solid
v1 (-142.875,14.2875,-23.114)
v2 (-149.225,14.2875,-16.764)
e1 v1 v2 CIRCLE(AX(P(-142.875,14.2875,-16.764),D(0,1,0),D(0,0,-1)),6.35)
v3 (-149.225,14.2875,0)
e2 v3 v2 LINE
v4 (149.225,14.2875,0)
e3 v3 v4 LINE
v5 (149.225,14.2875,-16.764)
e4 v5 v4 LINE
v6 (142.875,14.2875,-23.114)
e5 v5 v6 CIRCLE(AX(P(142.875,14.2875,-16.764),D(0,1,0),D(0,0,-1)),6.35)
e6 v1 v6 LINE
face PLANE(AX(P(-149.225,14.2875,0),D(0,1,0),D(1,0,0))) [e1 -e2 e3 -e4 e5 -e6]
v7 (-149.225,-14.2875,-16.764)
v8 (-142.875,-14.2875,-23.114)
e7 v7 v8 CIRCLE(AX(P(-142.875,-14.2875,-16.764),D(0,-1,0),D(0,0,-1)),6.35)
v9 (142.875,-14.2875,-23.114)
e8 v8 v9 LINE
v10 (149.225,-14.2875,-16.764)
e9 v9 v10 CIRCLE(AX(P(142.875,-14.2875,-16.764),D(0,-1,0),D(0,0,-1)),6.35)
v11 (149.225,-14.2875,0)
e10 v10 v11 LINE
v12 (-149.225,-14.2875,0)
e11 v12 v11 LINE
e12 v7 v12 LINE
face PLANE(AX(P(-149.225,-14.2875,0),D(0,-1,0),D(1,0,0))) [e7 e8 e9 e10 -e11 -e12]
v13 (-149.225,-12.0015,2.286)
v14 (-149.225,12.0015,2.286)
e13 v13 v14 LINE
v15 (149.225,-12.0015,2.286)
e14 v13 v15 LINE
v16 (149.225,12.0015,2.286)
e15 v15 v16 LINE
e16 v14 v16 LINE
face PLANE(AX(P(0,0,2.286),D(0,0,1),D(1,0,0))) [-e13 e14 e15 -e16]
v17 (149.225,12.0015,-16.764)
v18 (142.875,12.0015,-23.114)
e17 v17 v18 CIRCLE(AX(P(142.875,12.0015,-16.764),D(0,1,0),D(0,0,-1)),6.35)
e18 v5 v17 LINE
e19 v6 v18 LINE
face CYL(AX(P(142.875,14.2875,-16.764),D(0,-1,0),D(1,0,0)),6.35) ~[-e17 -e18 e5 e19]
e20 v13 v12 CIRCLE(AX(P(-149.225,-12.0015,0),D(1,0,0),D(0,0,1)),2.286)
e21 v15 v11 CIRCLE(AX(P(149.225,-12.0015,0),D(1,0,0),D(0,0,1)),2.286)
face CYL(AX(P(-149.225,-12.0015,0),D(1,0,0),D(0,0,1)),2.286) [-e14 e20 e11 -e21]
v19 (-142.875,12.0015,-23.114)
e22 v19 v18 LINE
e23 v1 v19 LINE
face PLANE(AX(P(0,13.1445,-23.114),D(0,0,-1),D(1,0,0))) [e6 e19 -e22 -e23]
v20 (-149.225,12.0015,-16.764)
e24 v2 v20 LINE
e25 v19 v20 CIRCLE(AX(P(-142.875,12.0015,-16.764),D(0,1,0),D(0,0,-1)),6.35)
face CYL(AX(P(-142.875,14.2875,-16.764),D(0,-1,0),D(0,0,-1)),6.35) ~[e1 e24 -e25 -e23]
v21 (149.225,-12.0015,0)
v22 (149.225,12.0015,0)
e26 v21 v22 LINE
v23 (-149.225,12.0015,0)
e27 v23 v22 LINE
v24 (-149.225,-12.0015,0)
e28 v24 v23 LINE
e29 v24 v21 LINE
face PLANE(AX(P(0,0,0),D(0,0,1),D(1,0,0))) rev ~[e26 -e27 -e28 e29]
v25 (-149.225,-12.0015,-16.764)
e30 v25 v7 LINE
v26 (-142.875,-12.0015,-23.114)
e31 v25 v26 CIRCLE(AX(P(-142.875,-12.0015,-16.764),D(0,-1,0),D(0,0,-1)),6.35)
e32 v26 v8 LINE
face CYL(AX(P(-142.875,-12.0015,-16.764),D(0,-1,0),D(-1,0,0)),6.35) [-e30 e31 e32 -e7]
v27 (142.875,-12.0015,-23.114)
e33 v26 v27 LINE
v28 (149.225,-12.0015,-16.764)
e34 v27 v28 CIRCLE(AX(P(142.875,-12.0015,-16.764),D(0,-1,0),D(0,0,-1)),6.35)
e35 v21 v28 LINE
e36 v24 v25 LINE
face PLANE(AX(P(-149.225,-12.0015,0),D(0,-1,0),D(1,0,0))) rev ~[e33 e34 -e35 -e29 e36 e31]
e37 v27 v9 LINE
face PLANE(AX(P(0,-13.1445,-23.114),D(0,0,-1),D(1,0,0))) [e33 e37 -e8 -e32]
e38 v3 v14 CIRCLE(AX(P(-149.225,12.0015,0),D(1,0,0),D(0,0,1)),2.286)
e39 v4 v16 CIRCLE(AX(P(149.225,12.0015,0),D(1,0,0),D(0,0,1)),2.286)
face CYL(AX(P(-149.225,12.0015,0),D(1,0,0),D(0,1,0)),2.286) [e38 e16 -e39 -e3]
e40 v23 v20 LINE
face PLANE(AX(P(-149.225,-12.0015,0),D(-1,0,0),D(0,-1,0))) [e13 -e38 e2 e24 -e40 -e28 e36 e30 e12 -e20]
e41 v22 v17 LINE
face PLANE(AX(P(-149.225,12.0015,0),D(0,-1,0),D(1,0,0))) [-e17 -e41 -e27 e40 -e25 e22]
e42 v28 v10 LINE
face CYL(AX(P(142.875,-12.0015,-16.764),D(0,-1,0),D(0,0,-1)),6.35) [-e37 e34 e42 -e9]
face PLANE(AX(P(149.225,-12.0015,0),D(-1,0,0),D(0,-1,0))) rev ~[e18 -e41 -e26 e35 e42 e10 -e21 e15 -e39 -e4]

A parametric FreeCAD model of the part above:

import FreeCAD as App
import Part
import Sketcher
Q = App.Units.Quantity


def edges_at(feature, points):
    """Names of the edges that pass closest to the given points."""
    edges = feature.Shape.Edges
    near = lambda p: min(range(len(edges)), key=lambda i: edges[i].distToShape(Part.Vertex(*p))[0])
    return sorted({f"Edge{near(p) + 1}" for p in points})

doc = App.newDocument("Part")
body = doc.addObject("PartDesign::Body", "Body")

sketch1 = body.newObject("Sketcher::SketchObject", "Sketch")
sketch1.AttachmentSupport = (doc.getObject("XY_Plane"), [""])
sketch1.MapMode = "FlatFace"
sketch1.addGeometry([
    Part.LineSegment(App.Vector(-149.225, 14.2875, 0), App.Vector(-149.225, -14.2875, 0)),
    Part.LineSegment(App.Vector(-149.225, -14.2875, 0), App.Vector(149.225, -14.2875, 0)),
    Part.LineSegment(App.Vector(149.225, -14.2875, 0), App.Vector(149.225, 14.2875, 0)),
    Part.LineSegment(App.Vector(149.225, 14.2875, 0), App.Vector(-149.225, 14.2875, 0)),
], False)
sketch1.addConstraint([
    Sketcher.Constraint("Coincident", 0, 2, 1, 1),
    Sketcher.Constraint("Coincident", 1, 2, 2, 1),
    Sketcher.Constraint("Coincident", 2, 2, 3, 1),
    Sketcher.Constraint("Coincident", 3, 2, 0, 1),
    Sketcher.Constraint("Vertical", 0),
    Sketcher.Constraint("Horizontal", 1),
    Sketcher.Constraint("Vertical", 2),
    Sketcher.Constraint("Horizontal", 3),
    Sketcher.Constraint("Symmetric", 0, 2, 2, 2, -1, 1),
    Sketcher.Constraint("DistanceX", 1, 1, 1, 2, Q("11.75 in")),
    Sketcher.Constraint("DistanceY", 0, 2, 0, 1, Q("1.125 in")),
])
pad1 = body.newObject("PartDesign::Pad", "Pad")
pad1.Profile = sketch1
pad1.Length = Q("0.09 in")

sketch2 = body.newObject("Sketcher::SketchObject", "Sketch001")
sketch2.AttachmentSupport = (doc.getObject("XY_Plane"), [""])
sketch2.MapMode = "FlatFace"
sketch2.addGeometry([
    Part.LineSegment(App.Vector(-149.225, -14.2875, 0), App.Vector(-149.225, -12.0015, 0)),
    Part.LineSegment(App.Vector(-149.225, -12.0015, 0), App.Vector(149.225, -12.0015, 0)),
    Part.LineSegment(App.Vector(149.225, -12.0015, 0), App.Vector(149.225, -14.2875, 0)),
    Part.LineSegment(App.Vector(149.225, -14.2875, 0), App.Vector(-149.225, -14.2875, 0)),
    Part.LineSegment(App.Vector(-149.225, 12.0015, 0), App.Vector(-149.225, 14.2875, 0)),
    Part.LineSegment(App.Vector(-149.225, 14.2875, 0), App.Vector(149.225, 14.2875, 0)),
    Part.LineSegment(App.Vector(149.225, 14.2875, 0), App.Vector(149.225, 12.0015, 0)),
    Part.LineSegment(App.Vector(149.225, 12.0015, 0), App.Vector(-149.225, 12.0015, 0)),
], False)
sketch2.addConstraint([
    Sketcher.Constraint("Coincident", 0, 2, 1, 1),
    Sketcher.Constraint("Coincident", 1, 2, 2, 1),
    Sketcher.Constraint("Coincident", 2, 2, 3, 1),
    Sketcher.Constraint("Coincident", 3, 2, 0, 1),
    Sketcher.Constraint("Coincident", 4, 2, 5, 1),
    Sketcher.Constraint("Coincident", 5, 2, 6, 1),
    Sketcher.Constraint("Coincident", 6, 2, 7, 1),
    Sketcher.Constraint("Coincident", 7, 2, 4, 1),
    Sketcher.Constraint("Vertical", 0),
    Sketcher.Constraint("Horizontal", 1),
    Sketcher.Constraint("Vertical", 2),
    Sketcher.Constraint("Horizontal", 3),
    Sketcher.Constraint("Vertical", 4),
    Sketcher.Constraint("Horizontal", 5),
    Sketcher.Constraint("Vertical", 6),
    Sketcher.Constraint("Horizontal", 7),
    Sketcher.Constraint("Symmetric", 2, 2, 4, 2, -1, 1),
    Sketcher.Constraint("Symmetric", 0, 2, 6, 2, -1, 1),
    Sketcher.Constraint("Vertical", 3, 2, 4, 2),
    Sketcher.Constraint("DistanceX", 1, 1, 1, 2, Q("11.75 in")),
    Sketcher.Constraint("DistanceY", 0, 1, 0, 2, Q("0.09 in")),
    Sketcher.Constraint("DistanceY", 2, 2, -1, 1, Q("0.5625 in")),
])
pad2 = body.newObject("PartDesign::Pad", "Pad001")
pad2.Profile = sketch2
pad2.Length = Q("0.91 in")
pad2.Reversed = True
doc.recompute()

fillet = body.newObject("PartDesign::Fillet", "Fillet")
fillet.Base = (pad2, edges_at(pad2, [(0, -14.287, 2.286), (0, 14.287, 2.286)]))
fillet.Radius = Q("0.09 in")
doc.recompute()

fillet2 = body.newObject("PartDesign::Fillet", "Fillet001")
fillet2.Base = (fillet, edges_at(fillet, [(149.225, -13.145, -23.114)]))
fillet2.Radius = Q("0.25 in")
doc.recompute()

fillet3 = body.newObject("PartDesign::Fillet", "Fillet002")
fillet3.Base = (fillet2, edges_at(fillet2, [(149.225, 13.145, -23.114)]))
fillet3.Radius = Q("0.25 in")
doc.recompute()

fillet4 = body.newObject("PartDesign::Fillet", "Fillet003")
fillet4.Base = (fillet3, edges_at(fillet3, [(-149.225, -13.145, -23.114), (-149.225, 13.145, -23.114)]))
fillet4.Radius = Q("0.25 in")

doc.recompute()
